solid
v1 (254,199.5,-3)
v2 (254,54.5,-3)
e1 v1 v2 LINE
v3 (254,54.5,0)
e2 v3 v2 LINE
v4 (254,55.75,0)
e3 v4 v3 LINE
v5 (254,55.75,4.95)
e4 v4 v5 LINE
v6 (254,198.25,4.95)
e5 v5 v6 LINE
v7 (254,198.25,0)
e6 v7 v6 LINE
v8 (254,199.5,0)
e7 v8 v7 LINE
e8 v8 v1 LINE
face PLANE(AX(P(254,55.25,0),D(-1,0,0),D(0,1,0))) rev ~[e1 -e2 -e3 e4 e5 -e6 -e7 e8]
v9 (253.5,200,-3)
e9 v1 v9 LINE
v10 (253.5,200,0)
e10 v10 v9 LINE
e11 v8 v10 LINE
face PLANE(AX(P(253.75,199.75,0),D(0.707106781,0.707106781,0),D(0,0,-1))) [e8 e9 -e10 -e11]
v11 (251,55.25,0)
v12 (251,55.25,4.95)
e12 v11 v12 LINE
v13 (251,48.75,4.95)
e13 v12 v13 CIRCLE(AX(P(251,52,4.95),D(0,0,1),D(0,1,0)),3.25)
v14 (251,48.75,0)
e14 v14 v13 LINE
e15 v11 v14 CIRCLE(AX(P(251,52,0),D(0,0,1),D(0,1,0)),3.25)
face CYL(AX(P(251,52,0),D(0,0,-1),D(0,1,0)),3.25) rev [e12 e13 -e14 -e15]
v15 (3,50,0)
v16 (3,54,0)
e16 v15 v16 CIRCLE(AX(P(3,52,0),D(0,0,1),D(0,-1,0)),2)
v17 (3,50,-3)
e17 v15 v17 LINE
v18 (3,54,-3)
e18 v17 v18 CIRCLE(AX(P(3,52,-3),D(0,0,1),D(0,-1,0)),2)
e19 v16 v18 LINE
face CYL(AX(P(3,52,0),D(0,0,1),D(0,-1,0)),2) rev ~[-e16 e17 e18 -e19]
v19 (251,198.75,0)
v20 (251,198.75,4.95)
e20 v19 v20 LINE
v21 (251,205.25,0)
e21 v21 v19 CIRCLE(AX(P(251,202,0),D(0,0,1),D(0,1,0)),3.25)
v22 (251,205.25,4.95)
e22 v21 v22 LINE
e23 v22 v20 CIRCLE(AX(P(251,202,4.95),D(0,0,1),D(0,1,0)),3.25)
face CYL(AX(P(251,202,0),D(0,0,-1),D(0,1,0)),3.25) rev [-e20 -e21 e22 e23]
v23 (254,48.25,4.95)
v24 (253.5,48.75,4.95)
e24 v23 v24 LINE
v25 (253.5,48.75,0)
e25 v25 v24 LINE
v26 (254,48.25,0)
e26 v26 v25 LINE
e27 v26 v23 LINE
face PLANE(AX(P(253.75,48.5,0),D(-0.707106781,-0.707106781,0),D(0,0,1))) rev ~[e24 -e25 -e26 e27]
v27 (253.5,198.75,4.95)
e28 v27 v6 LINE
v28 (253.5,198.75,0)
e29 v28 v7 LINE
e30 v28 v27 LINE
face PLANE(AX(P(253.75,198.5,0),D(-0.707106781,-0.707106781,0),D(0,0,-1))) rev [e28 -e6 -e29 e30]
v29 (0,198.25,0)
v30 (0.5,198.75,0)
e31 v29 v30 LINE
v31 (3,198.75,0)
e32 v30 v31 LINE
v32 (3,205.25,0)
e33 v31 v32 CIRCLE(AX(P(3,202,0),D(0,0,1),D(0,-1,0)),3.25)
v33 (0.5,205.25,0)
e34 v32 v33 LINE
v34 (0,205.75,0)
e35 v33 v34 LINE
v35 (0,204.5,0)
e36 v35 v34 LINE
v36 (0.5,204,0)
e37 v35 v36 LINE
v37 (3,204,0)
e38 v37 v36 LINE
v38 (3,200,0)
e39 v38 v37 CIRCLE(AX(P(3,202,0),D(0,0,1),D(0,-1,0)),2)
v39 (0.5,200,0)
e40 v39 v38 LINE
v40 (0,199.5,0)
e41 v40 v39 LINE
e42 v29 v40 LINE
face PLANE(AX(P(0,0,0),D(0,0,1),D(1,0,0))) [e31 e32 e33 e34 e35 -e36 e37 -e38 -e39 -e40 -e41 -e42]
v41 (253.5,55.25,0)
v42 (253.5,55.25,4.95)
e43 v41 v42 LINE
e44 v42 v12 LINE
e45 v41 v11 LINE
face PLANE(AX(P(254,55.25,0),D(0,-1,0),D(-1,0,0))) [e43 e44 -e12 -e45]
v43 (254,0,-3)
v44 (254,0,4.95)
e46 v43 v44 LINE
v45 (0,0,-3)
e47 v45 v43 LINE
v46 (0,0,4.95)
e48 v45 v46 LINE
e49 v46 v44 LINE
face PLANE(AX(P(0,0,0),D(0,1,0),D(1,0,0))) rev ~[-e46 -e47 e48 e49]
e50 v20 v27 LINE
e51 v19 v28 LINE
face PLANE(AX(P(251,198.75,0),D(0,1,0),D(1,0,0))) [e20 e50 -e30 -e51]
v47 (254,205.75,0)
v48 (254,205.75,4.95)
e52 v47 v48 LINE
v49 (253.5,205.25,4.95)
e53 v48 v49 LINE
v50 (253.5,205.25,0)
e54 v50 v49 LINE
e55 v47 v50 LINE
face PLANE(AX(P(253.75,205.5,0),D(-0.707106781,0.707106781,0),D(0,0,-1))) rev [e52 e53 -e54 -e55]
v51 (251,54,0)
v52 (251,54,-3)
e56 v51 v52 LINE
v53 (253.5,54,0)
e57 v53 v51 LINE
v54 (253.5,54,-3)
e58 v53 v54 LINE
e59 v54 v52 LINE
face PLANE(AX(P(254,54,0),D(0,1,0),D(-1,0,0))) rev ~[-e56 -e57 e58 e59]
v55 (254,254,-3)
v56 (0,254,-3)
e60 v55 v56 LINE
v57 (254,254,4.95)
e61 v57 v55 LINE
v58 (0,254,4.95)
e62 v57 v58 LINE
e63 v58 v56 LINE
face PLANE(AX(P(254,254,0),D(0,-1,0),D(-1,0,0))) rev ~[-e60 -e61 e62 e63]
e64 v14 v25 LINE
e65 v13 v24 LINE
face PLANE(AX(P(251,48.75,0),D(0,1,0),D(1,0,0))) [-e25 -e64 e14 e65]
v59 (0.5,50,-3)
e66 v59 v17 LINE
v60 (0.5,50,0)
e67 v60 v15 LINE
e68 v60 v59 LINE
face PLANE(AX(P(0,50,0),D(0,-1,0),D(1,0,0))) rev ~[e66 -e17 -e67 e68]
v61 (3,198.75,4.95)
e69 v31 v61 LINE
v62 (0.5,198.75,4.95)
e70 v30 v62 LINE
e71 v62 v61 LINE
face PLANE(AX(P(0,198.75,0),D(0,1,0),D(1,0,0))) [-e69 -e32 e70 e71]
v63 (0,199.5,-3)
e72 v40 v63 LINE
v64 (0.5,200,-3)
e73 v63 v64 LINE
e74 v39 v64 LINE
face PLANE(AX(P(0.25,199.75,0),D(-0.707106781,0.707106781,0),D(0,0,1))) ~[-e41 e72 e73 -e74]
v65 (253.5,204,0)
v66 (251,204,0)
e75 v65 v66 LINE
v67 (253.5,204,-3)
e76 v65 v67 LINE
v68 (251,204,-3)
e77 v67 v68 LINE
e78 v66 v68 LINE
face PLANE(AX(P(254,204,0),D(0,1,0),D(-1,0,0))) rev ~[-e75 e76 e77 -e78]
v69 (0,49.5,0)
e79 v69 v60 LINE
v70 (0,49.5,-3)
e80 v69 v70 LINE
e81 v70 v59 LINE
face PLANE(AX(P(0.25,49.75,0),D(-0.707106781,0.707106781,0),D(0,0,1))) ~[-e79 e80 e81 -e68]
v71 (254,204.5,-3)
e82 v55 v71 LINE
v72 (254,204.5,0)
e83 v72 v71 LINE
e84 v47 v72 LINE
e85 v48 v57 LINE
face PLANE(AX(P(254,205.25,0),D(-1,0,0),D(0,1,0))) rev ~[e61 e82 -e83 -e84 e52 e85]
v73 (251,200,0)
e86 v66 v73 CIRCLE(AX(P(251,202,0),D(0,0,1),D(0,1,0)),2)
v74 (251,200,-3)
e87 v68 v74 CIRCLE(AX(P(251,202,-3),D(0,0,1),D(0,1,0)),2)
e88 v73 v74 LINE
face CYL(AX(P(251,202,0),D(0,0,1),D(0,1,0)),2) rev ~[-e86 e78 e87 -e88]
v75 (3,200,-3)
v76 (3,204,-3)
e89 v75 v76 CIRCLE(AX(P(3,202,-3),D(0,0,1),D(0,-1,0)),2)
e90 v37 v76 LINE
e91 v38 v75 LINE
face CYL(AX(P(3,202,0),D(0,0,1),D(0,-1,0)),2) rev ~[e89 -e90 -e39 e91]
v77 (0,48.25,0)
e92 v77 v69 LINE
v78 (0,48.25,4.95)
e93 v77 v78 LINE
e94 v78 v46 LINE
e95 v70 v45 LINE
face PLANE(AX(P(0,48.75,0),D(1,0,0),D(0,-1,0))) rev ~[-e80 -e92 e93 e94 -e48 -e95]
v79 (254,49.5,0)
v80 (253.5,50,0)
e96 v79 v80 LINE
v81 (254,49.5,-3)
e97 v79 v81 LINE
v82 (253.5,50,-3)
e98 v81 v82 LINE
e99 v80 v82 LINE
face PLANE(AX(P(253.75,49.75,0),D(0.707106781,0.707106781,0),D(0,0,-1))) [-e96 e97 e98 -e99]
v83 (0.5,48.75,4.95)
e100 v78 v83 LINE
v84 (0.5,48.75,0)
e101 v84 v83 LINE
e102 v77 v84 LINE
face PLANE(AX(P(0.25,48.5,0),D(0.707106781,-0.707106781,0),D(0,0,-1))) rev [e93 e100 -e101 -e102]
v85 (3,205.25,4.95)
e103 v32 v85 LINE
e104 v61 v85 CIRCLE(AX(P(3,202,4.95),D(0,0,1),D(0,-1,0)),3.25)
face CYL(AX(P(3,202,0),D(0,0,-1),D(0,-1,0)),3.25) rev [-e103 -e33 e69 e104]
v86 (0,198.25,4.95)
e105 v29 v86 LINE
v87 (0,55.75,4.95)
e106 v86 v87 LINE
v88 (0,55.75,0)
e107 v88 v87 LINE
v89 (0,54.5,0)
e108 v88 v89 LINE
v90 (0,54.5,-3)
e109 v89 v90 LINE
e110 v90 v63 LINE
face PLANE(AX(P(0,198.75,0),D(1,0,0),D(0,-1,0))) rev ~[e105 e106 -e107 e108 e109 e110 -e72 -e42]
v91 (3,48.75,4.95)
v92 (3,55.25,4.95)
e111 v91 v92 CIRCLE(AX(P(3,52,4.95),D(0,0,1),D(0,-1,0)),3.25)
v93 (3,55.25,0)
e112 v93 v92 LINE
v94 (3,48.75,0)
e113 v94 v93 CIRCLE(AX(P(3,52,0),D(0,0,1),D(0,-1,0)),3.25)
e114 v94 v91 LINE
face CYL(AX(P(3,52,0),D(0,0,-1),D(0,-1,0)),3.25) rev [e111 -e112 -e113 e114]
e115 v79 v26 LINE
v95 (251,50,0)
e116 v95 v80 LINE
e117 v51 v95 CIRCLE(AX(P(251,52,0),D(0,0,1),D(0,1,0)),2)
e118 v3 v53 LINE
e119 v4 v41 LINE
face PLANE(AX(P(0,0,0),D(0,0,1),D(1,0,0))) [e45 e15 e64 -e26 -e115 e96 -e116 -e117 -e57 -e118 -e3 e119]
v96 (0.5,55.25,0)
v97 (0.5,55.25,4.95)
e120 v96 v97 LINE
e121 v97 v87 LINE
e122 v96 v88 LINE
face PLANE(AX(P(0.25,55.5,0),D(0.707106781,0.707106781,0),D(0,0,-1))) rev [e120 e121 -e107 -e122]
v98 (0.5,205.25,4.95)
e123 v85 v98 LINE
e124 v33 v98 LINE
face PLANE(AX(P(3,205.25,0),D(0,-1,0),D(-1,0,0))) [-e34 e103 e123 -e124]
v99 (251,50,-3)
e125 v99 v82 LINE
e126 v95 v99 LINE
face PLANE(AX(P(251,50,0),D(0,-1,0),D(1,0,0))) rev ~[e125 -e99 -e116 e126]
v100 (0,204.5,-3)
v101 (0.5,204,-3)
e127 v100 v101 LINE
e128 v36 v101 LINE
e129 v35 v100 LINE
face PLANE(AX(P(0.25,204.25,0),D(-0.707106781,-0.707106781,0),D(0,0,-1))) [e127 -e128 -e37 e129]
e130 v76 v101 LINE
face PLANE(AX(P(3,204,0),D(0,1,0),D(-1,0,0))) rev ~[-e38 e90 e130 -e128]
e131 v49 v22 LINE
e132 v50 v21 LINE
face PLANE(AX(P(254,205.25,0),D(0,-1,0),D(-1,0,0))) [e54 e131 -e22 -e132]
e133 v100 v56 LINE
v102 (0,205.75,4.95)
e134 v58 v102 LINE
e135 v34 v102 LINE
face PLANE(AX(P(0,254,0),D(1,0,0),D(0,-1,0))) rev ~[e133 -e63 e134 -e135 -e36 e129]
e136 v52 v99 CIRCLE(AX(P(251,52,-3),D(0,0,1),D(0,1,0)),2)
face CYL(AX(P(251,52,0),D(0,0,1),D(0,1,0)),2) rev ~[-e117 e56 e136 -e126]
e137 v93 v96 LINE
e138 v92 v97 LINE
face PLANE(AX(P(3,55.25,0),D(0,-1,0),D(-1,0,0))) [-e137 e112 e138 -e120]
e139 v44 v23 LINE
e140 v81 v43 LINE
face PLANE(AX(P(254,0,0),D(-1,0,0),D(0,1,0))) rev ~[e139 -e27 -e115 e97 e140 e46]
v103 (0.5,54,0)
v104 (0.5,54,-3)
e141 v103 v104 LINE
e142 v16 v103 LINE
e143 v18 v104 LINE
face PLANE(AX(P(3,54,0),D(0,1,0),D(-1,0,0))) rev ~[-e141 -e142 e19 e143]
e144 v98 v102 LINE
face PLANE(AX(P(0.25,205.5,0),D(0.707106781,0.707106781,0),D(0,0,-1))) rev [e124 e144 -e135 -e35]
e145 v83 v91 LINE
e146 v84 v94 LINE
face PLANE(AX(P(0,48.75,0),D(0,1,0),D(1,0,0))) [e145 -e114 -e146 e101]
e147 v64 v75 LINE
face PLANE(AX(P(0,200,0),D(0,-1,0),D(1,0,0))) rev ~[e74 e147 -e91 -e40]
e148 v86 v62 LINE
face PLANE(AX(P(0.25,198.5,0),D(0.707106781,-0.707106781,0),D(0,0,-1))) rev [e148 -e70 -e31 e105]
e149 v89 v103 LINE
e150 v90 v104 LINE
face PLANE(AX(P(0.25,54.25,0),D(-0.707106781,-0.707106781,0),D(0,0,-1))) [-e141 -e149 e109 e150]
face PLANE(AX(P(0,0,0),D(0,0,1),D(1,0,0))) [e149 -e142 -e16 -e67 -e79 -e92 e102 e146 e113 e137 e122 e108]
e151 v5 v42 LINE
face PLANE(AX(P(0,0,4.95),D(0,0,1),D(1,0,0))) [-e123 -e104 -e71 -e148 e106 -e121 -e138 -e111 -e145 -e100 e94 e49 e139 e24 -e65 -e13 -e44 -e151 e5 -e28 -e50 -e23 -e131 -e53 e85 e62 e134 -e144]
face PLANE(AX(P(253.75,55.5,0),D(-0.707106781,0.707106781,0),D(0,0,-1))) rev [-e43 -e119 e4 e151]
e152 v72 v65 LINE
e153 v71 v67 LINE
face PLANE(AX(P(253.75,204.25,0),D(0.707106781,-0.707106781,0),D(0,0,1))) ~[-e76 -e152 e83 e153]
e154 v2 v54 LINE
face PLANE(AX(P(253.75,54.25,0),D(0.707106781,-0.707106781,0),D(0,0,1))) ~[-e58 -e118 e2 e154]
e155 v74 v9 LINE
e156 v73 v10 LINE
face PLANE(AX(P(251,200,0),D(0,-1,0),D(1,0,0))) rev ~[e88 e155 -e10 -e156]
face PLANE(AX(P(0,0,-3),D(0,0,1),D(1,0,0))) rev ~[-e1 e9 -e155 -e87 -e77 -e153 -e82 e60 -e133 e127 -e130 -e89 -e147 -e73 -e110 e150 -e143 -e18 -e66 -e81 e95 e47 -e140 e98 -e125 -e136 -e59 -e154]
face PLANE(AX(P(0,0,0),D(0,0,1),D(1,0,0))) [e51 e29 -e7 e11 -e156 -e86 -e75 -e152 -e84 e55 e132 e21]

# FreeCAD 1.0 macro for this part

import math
import FreeCAD as App
import Part
import Sketcher
from FreeCAD import Vector


def edges_at(feature, points):
    """Names of the edges that pass closest to the given points."""
    edges = feature.Shape.Edges
    near = lambda p: min(range(len(edges)), key=lambda i: edges[i].distToShape(Part.Vertex(*p))[0])
    return sorted({f"Edge{near(p) + 1}" for p in points})

doc = App.newDocument("Part")
params = doc.addObject("Spreadsheet::Sheet", "Params")
for row, (alias, value) in enumerate([
    ("sketch1_width", "254 mm"),
    ("sketch1_width2", "3 mm"),
    ("sketch1_radius", "3.25 mm"),
    ("sketch1_height", "143.5 mm"),
    ("pad1_length", "4.95 mm"),
    ("sketch2_radius", "2 mm"),
    ("sketch2_width", "254 mm"),
    ("sketch2_width2", "3 mm"),
    ("sketch2_height", "50 mm"),
    ("pad2_length", "3 mm"),
    ("chamfer_size", "0.5 mm"),
], start=1):
    params.set(f"A{row}", alias)
    params.set(f"B{row}", "=" + value)
    params.setAlias(f"B{row}", alias)

body = doc.addObject("PartDesign::Body", "Body")

sketch1 = body.newObject("Sketcher::SketchObject", "Sketch")
sketch1.AttachmentSupport = (doc.getObject("XY_Plane"), [""])
sketch1.MapMode = "FlatFace"
sketch1.addGeometry(Part.LineSegment(Vector(0, 48.75, 0), Vector(0, 0, 0)), False)
sketch1.addGeometry(Part.LineSegment(Vector(0, 0, 0), Vector(254, 0, 0)), False)
sketch1.addGeometry(Part.LineSegment(Vector(254, 0, 0), Vector(254, 48.75, 0)), False)
sketch1.addGeometry(Part.LineSegment(Vector(254, 48.75, 0), Vector(251, 48.75, 0)), False)
sketch1.addGeometry(Part.ArcOfCircle(Part.Circle(Vector(251, 52, 0), Vector(0, 0, 1), 3.25), math.radians(90), math.radians(270)), False)
sketch1.addGeometry(Part.LineSegment(Vector(251, 55.25, 0), Vector(254, 55.25, 0)), False)
sketch1.addGeometry(Part.LineSegment(Vector(254, 55.25, 0), Vector(254, 198.75, 0)), False)
sketch1.addGeometry(Part.LineSegment(Vector(254, 198.75, 0), Vector(251, 198.75, 0)), False)
sketch1.addGeometry(Part.ArcOfCircle(Part.Circle(Vector(251, 202, 0), Vector(0, 0, 1), 3.25), math.radians(90), math.radians(270)), False)
sketch1.addGeometry(Part.LineSegment(Vector(251, 205.25, 0), Vector(254, 205.25, 0)), False)
sketch1.addGeometry(Part.LineSegment(Vector(254, 205.25, 0), Vector(254, 254, 0)), False)
sketch1.addGeometry(Part.LineSegment(Vector(254, 254, 0), Vector(0, 254, 0)), False)
sketch1.addGeometry(Part.LineSegment(Vector(0, 254, 0), Vector(0, 205.25, 0)), False)
sketch1.addGeometry(Part.LineSegment(Vector(0, 205.25, 0), Vector(3, 205.25, 0)), False)
sketch1.addGeometry(Part.ArcOfCircle(Part.Circle(Vector(3, 202, 0), Vector(0, 0, 1), 3.25), math.radians(-90), math.radians(90)), False)
sketch1.addGeometry(Part.LineSegment(Vector(3, 198.75, 0), Vector(0, 198.75, 0)), False)
sketch1.addGeometry(Part.LineSegment(Vector(0, 198.75, 0), Vector(0, 55.25, 0)), False)
sketch1.addGeometry(Part.LineSegment(Vector(0, 55.25, 0), Vector(3, 55.25, 0)), False)
sketch1.addGeometry(Part.ArcOfCircle(Part.Circle(Vector(3, 52, 0), Vector(0, 0, 1), 3.25), math.radians(-90), math.radians(90)), False)
sketch1.addGeometry(Part.LineSegment(Vector(3, 48.75, 0), Vector(0, 48.75, 0)), False)
sketch1.addConstraint(Sketcher.Constraint("Coincident", 0, 2, 1, 1))
sketch1.addConstraint(Sketcher.Constraint("Coincident", 1, 2, 2, 1))
sketch1.addConstraint(Sketcher.Constraint("Coincident", 2, 2, 3, 1))
sketch1.addConstraint(Sketcher.Constraint("Tangent", 3, 2, 4, 2))
sketch1.addConstraint(Sketcher.Constraint("Tangent", 4, 1, 5, 1))
sketch1.addConstraint(Sketcher.Constraint("Coincident", 5, 2, 6, 1))
sketch1.addConstraint(Sketcher.Constraint("Coincident", 6, 2, 7, 1))
sketch1.addConstraint(Sketcher.Constraint("Tangent", 7, 2, 8, 2))
sketch1.addConstraint(Sketcher.Constraint("Tangent", 8, 1, 9, 1))
sketch1.addConstraint(Sketcher.Constraint("Coincident", 9, 2, 10, 1))
sketch1.addConstraint(Sketcher.Constraint("Coincident", 10, 2, 11, 1))
sketch1.addConstraint(Sketcher.Constraint("Coincident", 11, 2, 12, 1))
sketch1.addConstraint(Sketcher.Constraint("Coincident", 12, 2, 13, 1))
sketch1.addConstraint(Sketcher.Constraint("Tangent", 13, 2, 14, 2))
sketch1.addConstraint(Sketcher.Constraint("Tangent", 14, 1, 15, 1))
sketch1.addConstraint(Sketcher.Constraint("Coincident", 15, 2, 16, 1))
sketch1.addConstraint(Sketcher.Constraint("Coincident", 16, 2, 17, 1))
sketch1.addConstraint(Sketcher.Constraint("Tangent", 17, 2, 18, 2))
sketch1.addConstraint(Sketcher.Constraint("Tangent", 18, 1, 19, 1))
sketch1.addConstraint(Sketcher.Constraint("Coincident", 19, 2, 0, 1))
sketch1.addConstraint(Sketcher.Constraint("Vertical", 0))
sketch1.addConstraint(Sketcher.Constraint("Horizontal", 1))
sketch1.addConstraint(Sketcher.Constraint("Vertical", 2))
sketch1.addConstraint(Sketcher.Constraint("Horizontal", 3))
sketch1.addConstraint(Sketcher.Constraint("Horizontal", 5))
sketch1.addConstraint(Sketcher.Constraint("Vertical", 6))
sketch1.addConstraint(Sketcher.Constraint("Horizontal", 7))
sketch1.addConstraint(Sketcher.Constraint("Horizontal", 9))
sketch1.addConstraint(Sketcher.Constraint("Vertical", 10))
sketch1.addConstraint(Sketcher.Constraint("Horizontal", 11))
sketch1.addConstraint(Sketcher.Constraint("Vertical", 12))
sketch1.addConstraint(Sketcher.Constraint("Horizontal", 13))
sketch1.addConstraint(Sketcher.Constraint("Horizontal", 15))
sketch1.addConstraint(Sketcher.Constraint("Vertical", 16))
sketch1.addConstraint(Sketcher.Constraint("Horizontal", 17))
sketch1.addConstraint(Sketcher.Constraint("Horizontal", 19))
sketch1.addConstraint(Sketcher.Constraint("Coincident", 0, 2, -1, 1))
sketch1.addConstraint(Sketcher.Constraint("Equal", 4, 8))
sketch1.addConstraint(Sketcher.Constraint("Equal", 8, 14))
sketch1.addConstraint(Sketcher.Constraint("Equal", 14, 18))
sketch1.addConstraint(Sketcher.Constraint("PointOnObject", 11, 2, -2))
sketch1.addConstraint(Sketcher.Constraint("PointOnObject", 15, 2, -2))
sketch1.addConstraint(Sketcher.Constraint("Horizontal", 8, 3, 14, 3))
sketch1.addConstraint(Sketcher.Constraint("Horizontal", 4, 3, 18, 3))
sketch1.addConstraint(Sketcher.Constraint("Vertical", 4, 3, 8, 3))
sketch1.addConstraint(Sketcher.Constraint("Vertical", 14, 3, 18, 3))
sketch1.addConstraint(Sketcher.Constraint("Vertical", 2, 2, 5, 2))
sketch1.addConstraint(Sketcher.Constraint("Vertical", 6, 2, 9, 2))
sketch1.addConstraint(Sketcher.Constraint("Equal", 9, 13))
sketch1.addConstraint(Sketcher.Constraint("Equal", 2, 10))
sketch1.addConstraint(Sketcher.Constraint("DistanceX", 1, 1, 1, 2, 254.0))
sketch1.addConstraint(Sketcher.Constraint("DistanceX", 3, 2, 3, 1, 3.0))
sketch1.addConstraint(Sketcher.Constraint("DistanceY", -1, 1, 10, 2, 254.0))
sketch1.addConstraint(Sketcher.Constraint("Radius", 4, 3.25))
sketch1.addConstraint(Sketcher.Constraint("DistanceY", 6, 1, 6, 2, 143.5))
sketch1.setExpression("Constraints[50]", "Params.sketch1_width")
sketch1.setExpression("Constraints[51]", "Params.sketch1_width2")
sketch1.setExpression("Constraints[53]", "Params.sketch1_radius")
sketch1.setExpression("Constraints[54]", "Params.sketch1_height")
pad1 = body.newObject("PartDesign::Pad", "Pad")
pad1.Profile = sketch1
pad1.setExpression("Length", "Params.pad1_length")

sketch2 = body.newObject("Sketcher::SketchObject", "Sketch001")
sketch2.AttachmentSupport = (doc.getObject("XY_Plane"), [""])
sketch2.MapMode = "FlatFace"
sketch2.addGeometry(Part.LineSegment(Vector(0, 0, 0), Vector(254, 0, 0)), False)
sketch2.addGeometry(Part.LineSegment(Vector(254, 0, 0), Vector(254, 50, 0)), False)
sketch2.addGeometry(Part.LineSegment(Vector(254, 50, 0), Vector(251, 50, 0)), False)
sketch2.addGeometry(Part.ArcOfCircle(Part.Circle(Vector(251, 52, 0), Vector(0, 0, 1), 2), math.radians(90), math.radians(270)), False)
sketch2.addGeometry(Part.LineSegment(Vector(251, 54, 0), Vector(254, 54, 0)), False)
sketch2.addGeometry(Part.LineSegment(Vector(254, 54, 0), Vector(254, 200, 0)), False)
sketch2.addGeometry(Part.LineSegment(Vector(254, 200, 0), Vector(251, 200, 0)), False)
sketch2.addGeometry(Part.ArcOfCircle(Part.Circle(Vector(251, 202, 0), Vector(0, 0, 1), 2), math.radians(90), math.radians(270)), False)
sketch2.addGeometry(Part.LineSegment(Vector(251, 204, 0), Vector(254, 204, 0)), False)
sketch2.addGeometry(Part.LineSegment(Vector(254, 204, 0), Vector(254, 254, 0)), False)
sketch2.addGeometry(Part.LineSegment(Vector(254, 254, 0), Vector(0, 254, 0)), False)
sketch2.addGeometry(Part.LineSegment(Vector(0, 254, 0), Vector(0, 204, 0)), False)
sketch2.addGeometry(Part.LineSegment(Vector(0, 204, 0), Vector(3, 204, 0)), False)
sketch2.addGeometry(Part.ArcOfCircle(Part.Circle(Vector(3, 202, 0), Vector(0, 0, 1), 2), math.radians(-90), math.radians(90)), False)
sketch2.addGeometry(Part.LineSegment(Vector(3, 200, 0), Vector(0, 200, 0)), False)
sketch2.addGeometry(Part.LineSegment(Vector(0, 200, 0), Vector(0, 54, 0)), False)
sketch2.addGeometry(Part.LineSegment(Vector(0, 54, 0), Vector(3, 54, 0)), False)
sketch2.addGeometry(Part.ArcOfCircle(Part.Circle(Vector(3, 52, 0), Vector(0, 0, 1), 2), math.radians(-90), math.radians(90)), False)
sketch2.addGeometry(Part.LineSegment(Vector(3, 50, 0), Vector(0, 50, 0)), False)
sketch2.addGeometry(Part.LineSegment(Vector(0, 50, 0), Vector(0, 0, 0)), False)
sketch2.addConstraint(Sketcher.Constraint("Coincident", 0, 2, 1, 1))
sketch2.addConstraint(Sketcher.Constraint("Coincident", 1, 2, 2, 1))
sketch2.addConstraint(Sketcher.Constraint("Tangent", 2, 2, 3, 2))
sketch2.addConstraint(Sketcher.Constraint("Tangent", 3, 1, 4, 1))
sketch2.addConstraint(Sketcher.Constraint("Coincident", 4, 2, 5, 1))
sketch2.addConstraint(Sketcher.Constraint("Coincident", 5, 2, 6, 1))
sketch2.addConstraint(Sketcher.Constraint("Tangent", 6, 2, 7, 2))
sketch2.addConstraint(Sketcher.Constraint("Tangent", 7, 1, 8, 1))
sketch2.addConstraint(Sketcher.Constraint("Coincident", 8, 2, 9, 1))
sketch2.addConstraint(Sketcher.Constraint("Coincident", 9, 2, 10, 1))
sketch2.addConstraint(Sketcher.Constraint("Coincident", 10, 2, 11, 1))
sketch2.addConstraint(Sketcher.Constraint("Coincident", 11, 2, 12, 1))
sketch2.addConstraint(Sketcher.Constraint("Tangent", 12, 2, 13, 2))
sketch2.addConstraint(Sketcher.Constraint("Tangent", 13, 1, 14, 1))
sketch2.addConstraint(Sketcher.Constraint("Coincident", 14, 2, 15, 1))
sketch2.addConstraint(Sketcher.Constraint("Coincident", 15, 2, 16, 1))
sketch2.addConstraint(Sketcher.Constraint("Tangent", 16, 2, 17, 2))
sketch2.addConstraint(Sketcher.Constraint("Tangent", 17, 1, 18, 1))
sketch2.addConstraint(Sketcher.Constraint("Coincident", 18, 2, 19, 1))
sketch2.addConstraint(Sketcher.Constraint("Coincident", 19, 2, 0, 1))
sketch2.addConstraint(Sketcher.Constraint("Horizontal", 0))
sketch2.addConstraint(Sketcher.Constraint("Vertical", 1))
sketch2.addConstraint(Sketcher.Constraint("Horizontal", 2))
sketch2.addConstraint(Sketcher.Constraint("Horizontal", 4))
sketch2.addConstraint(Sketcher.Constraint("Vertical", 5))
sketch2.addConstraint(Sketcher.Constraint("Horizontal", 6))
sketch2.addConstraint(Sketcher.Constraint("Horizontal", 8))
sketch2.addConstraint(Sketcher.Constraint("Vertical", 9))
sketch2.addConstraint(Sketcher.Constraint("Horizontal", 10))
sketch2.addConstraint(Sketcher.Constraint("Vertical", 11))
sketch2.addConstraint(Sketcher.Constraint("Horizontal", 12))
sketch2.addConstraint(Sketcher.Constraint("Horizontal", 14))
sketch2.addConstraint(Sketcher.Constraint("Vertical", 15))
sketch2.addConstraint(Sketcher.Constraint("Horizontal", 16))
sketch2.addConstraint(Sketcher.Constraint("Horizontal", 18))
sketch2.addConstraint(Sketcher.Constraint("Vertical", 19))
sketch2.addConstraint(Sketcher.Constraint("Coincident", 19, 2, -1, 1))
sketch2.addConstraint(Sketcher.Constraint("Equal", 3, 7))
sketch2.addConstraint(Sketcher.Constraint("Equal", 7, 13))
sketch2.addConstraint(Sketcher.Constraint("Equal", 13, 17))
sketch2.addConstraint(Sketcher.Constraint("PointOnObject", 10, 2, -2))
sketch2.addConstraint(Sketcher.Constraint("PointOnObject", 14, 2, -2))
sketch2.addConstraint(Sketcher.Constraint("Horizontal", 7, 3, 13, 3))
sketch2.addConstraint(Sketcher.Constraint("Horizontal", 3, 3, 17, 3))
sketch2.addConstraint(Sketcher.Constraint("Vertical", 3, 3, 7, 3))
sketch2.addConstraint(Sketcher.Constraint("Vertical", 13, 3, 17, 3))
sketch2.addConstraint(Sketcher.Constraint("Vertical", 1, 2, 4, 2))
sketch2.addConstraint(Sketcher.Constraint("Vertical", 5, 2, 8, 2))
sketch2.addConstraint(Sketcher.Constraint("Equal", 8, 12))
sketch2.addConstraint(Sketcher.Constraint("Equal", 1, 9))
sketch2.addConstraint(Sketcher.Constraint("Radius", 3, 2.0))
sketch2.addConstraint(Sketcher.Constraint("DistanceX", 0, 1, 0, 2, 254.0))
sketch2.addConstraint(Sketcher.Constraint("DistanceX", 2, 2, 2, 1, 3.0))
sketch2.addConstraint(Sketcher.Constraint("DistanceY", -1, 1, 9, 2, 254.0))
sketch2.addConstraint(Sketcher.Constraint("DistanceY", 1, 1, 1, 2, 50.0))
sketch2.setExpression("Constraints[50]", "Params.sketch2_radius")
sketch2.setExpression("Constraints[51]", "Params.sketch2_width")
sketch2.setExpression("Constraints[52]", "Params.sketch2_width2")
sketch2.setExpression("Constraints[54]", "Params.sketch2_height")
pad2 = body.newObject("PartDesign::Pad", "Pad001")
pad2.Profile = sketch2
pad2.setExpression("Length", "Params.pad2_length")
pad2.Reversed = True
doc.recompute()

chamfer = body.newObject("PartDesign::Chamfer", "Chamfer")
chamfer.Base = (pad2, edges_at(pad2, [
    (0, 205.25, 2.475),
    (0, 198.75, 2.475),
    (0, 204, -1.5),
    (0, 200, -1.5),
    (0, 55.25, 2.475),
    (0, 48.75, 2.475),
    (0, 50, -1.5),
    (0, 54, -1.5),
    (254, 48.75, 2.475),
    (254, 55.25, 2.475),
    (254, 54, -1.5),
    (254, 50, -1.5),
    (254, 205.25, 2.475),
    (254, 198.75, 2.475),
    (254, 200, -1.5),
    (254, 204, -1.5),
]))
chamfer.setExpression("Size", "Params.chamfer_size")

doc.recompute()
